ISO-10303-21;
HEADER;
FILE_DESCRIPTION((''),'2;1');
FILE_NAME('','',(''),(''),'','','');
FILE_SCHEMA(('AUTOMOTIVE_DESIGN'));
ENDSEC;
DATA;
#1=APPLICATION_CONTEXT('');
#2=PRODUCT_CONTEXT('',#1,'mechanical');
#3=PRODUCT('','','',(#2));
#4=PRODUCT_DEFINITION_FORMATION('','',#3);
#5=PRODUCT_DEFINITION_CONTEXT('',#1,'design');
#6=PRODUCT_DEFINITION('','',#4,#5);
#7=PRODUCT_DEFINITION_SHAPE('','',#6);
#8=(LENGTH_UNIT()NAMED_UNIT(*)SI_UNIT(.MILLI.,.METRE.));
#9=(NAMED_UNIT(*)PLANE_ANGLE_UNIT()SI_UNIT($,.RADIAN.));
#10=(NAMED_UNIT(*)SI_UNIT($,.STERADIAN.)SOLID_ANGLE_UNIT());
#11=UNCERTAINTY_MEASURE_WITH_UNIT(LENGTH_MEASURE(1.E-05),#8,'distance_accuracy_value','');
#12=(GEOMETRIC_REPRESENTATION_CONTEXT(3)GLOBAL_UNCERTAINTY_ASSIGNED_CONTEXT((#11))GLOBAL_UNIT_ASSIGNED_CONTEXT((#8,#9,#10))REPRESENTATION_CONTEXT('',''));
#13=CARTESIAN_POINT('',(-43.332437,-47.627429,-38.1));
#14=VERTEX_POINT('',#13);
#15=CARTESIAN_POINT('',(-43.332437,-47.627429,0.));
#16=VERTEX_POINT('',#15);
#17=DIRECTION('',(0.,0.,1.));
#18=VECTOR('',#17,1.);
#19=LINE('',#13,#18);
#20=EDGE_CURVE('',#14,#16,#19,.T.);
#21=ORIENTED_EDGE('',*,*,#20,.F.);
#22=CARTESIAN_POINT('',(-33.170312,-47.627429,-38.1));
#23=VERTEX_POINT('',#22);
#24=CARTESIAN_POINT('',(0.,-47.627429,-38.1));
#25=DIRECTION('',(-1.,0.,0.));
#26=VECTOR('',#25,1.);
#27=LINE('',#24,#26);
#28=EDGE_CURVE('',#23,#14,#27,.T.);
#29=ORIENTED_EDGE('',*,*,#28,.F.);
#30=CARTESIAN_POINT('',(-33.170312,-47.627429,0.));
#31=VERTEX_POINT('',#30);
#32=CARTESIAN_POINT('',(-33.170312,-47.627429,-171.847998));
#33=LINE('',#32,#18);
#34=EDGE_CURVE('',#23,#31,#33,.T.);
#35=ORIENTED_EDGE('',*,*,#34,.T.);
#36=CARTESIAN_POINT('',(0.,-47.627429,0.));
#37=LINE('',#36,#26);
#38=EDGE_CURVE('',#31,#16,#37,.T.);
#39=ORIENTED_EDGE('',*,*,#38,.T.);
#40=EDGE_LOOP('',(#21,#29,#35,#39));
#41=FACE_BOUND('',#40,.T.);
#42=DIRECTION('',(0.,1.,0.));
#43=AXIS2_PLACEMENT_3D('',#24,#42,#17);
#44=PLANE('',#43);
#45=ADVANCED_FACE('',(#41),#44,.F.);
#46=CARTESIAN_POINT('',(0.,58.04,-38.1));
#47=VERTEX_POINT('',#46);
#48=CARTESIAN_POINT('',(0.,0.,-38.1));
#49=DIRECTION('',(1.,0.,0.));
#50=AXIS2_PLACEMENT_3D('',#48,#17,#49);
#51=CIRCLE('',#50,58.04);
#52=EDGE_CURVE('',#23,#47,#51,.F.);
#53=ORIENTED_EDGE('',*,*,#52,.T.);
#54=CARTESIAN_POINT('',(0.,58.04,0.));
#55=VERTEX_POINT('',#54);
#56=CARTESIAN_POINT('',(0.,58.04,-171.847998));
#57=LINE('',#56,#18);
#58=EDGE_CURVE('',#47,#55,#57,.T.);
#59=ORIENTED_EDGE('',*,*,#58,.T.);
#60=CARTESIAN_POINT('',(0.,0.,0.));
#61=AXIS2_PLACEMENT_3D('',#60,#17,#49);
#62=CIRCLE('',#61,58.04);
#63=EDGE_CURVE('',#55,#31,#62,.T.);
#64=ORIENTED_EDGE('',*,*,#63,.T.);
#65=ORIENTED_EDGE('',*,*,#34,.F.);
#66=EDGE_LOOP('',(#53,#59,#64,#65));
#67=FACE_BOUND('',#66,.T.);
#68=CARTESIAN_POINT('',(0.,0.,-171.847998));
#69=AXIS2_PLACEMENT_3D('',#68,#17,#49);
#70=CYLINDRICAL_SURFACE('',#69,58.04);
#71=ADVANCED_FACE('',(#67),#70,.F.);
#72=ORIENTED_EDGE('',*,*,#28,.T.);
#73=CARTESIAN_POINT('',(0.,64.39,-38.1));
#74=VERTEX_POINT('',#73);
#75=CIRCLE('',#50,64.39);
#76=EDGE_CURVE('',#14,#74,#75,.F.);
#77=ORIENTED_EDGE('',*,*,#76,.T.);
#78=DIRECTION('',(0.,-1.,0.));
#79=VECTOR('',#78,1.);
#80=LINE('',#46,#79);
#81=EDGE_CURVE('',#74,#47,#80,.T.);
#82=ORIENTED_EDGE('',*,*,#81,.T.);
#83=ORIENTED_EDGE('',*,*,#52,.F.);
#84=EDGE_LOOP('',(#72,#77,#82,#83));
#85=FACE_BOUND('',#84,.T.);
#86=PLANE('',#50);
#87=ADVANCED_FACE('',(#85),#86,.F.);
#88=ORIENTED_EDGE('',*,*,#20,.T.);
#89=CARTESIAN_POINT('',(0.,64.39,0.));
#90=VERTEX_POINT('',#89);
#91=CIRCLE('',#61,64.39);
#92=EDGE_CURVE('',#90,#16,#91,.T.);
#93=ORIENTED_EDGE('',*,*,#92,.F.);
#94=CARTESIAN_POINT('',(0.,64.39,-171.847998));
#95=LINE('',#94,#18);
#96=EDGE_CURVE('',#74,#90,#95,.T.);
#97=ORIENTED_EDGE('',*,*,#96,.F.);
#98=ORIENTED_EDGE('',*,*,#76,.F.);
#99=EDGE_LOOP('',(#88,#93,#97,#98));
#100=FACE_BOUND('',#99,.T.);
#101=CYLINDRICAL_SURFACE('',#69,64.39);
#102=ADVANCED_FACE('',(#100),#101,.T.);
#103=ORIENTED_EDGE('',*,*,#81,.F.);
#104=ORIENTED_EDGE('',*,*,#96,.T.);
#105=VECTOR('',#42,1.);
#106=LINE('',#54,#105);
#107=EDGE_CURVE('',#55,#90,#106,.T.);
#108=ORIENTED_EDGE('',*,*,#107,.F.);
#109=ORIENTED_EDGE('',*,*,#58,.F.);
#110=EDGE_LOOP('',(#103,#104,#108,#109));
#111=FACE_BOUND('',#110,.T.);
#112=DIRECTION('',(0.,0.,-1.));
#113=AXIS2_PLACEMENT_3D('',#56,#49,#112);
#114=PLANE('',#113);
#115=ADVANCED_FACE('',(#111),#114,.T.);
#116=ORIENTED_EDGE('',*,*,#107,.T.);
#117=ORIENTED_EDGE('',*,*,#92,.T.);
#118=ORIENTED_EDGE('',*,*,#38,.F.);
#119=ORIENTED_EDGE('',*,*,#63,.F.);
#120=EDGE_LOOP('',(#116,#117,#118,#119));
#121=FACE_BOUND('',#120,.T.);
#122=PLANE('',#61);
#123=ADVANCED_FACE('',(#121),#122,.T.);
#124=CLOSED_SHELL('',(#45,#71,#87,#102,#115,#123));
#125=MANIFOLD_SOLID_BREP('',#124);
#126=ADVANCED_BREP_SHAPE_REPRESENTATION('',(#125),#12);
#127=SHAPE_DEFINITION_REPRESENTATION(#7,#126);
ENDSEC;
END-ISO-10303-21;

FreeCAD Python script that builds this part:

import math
import FreeCAD as App
import Part
import Sketcher
from FreeCAD import Vector
Q = App.Units.Quantity

doc = App.newDocument("Part")
body = doc.addObject("PartDesign::Body", "Body")

sketch1 = body.newObject("Sketcher::SketchObject", "Sketch")
sketch1.AttachmentSupport = (doc.getObject("XY_Plane"), [""])
sketch1.MapMode = "FlatFace"
sketch1.addGeometry([
    Part.LineSegment(Vector(0, 58, 0), Vector(0, 64, 0)),
    Part.ArcOfCircle(Part.Circle(Vector(0, 0, 0), Vector(0, 0, 1), 64), math.radians(90), math.radians(235)),
    Part.LineSegment(Vector(-37, -53, 0), Vector(-33, -48, 0)),
    Part.ArcOfCircle(Part.Circle(Vector(0, 0, 0), Vector(0, 0, 1), 58), math.radians(90), math.radians(235)),
], False)
sketch1.addConstraint([
    Sketcher.Constraint("Coincident", 0, 2, 1, 1),
    Sketcher.Constraint("Coincident", 1, 2, 2, 1),
    Sketcher.Constraint("Coincident", 2, 2, 3, 2),
    Sketcher.Constraint("Coincident", 3, 1, 0, 1),
    Sketcher.Constraint("Vertical", 0),
    Sketcher.Constraint("Coincident", 1, 3, -1, 1),
    Sketcher.Constraint("Coincident", 3, 3, -1, 1),
    Sketcher.Constraint("PointOnObject", 0, 2, -2),
    Sketcher.Constraint("DistanceY", 0, 1, 0, 2, Q("0.25 in")),
    Sketcher.Constraint("Radius", 1, Q("64.39 mm")),
    Sketcher.Constraint("DistanceY", 2, 2, -1, 1, Q("47.627429 mm")),
    Sketcher.Constraint("DistanceY", 1, 2, 2, 2, Q("5.210789 mm")),
])
pad1 = body.newObject("PartDesign::Pad", "Pad")
pad1.Profile = sketch1
pad1.Length = Q("1.5 in")
pad1.Reversed = True

sketch2 = body.newObject("Sketcher::SketchObject", "Sketch001")
sketch2.AttachmentSupport = (doc.getObject("XY_Plane"), [""])
sketch2.MapMode = "FlatFace"
sketch2.addGeometry([
    Part.LineSegment(Vector(-37, -53, 0), Vector(-33, -48, 0)),
    Part.LineSegment(Vector(-33, -48, 0), Vector(-43, -48, 0)),
    Part.ArcOfCircle(Part.Circle(Vector(0, 0, 0), Vector(0, 0, 1), 64), math.radians(-132.3), math.radians(-124.86)),
], False)
sketch2.addConstraint([
    Sketcher.Constraint("Coincident", 0, 2, 1, 1),
    Sketcher.Constraint("Coincident", 1, 2, 2, 1),
    Sketcher.Constraint("Coincident", 2, 2, 0, 1),
    Sketcher.Constraint("Horizontal", 1),
    Sketcher.Constraint("Coincident", 2, 3, -1, 1),
    Sketcher.Constraint("Distance", 0, Q("0.25 in")),
    Sketcher.Constraint("Radius", 2, Q("64.39 mm")),
    Sketcher.Constraint("DistanceX", 1, 2, 1, 1, Q("10.162125 mm")),
    Sketcher.Constraint("DistanceY", 2, 2, 0, 2, Q("5.210789 mm")),
])
pocket1 = body.newObject("PartDesign::Pocket", "Pocket")
pocket1.Profile = sketch2
pocket1.Type = "ThroughAll"

doc.recompute()
